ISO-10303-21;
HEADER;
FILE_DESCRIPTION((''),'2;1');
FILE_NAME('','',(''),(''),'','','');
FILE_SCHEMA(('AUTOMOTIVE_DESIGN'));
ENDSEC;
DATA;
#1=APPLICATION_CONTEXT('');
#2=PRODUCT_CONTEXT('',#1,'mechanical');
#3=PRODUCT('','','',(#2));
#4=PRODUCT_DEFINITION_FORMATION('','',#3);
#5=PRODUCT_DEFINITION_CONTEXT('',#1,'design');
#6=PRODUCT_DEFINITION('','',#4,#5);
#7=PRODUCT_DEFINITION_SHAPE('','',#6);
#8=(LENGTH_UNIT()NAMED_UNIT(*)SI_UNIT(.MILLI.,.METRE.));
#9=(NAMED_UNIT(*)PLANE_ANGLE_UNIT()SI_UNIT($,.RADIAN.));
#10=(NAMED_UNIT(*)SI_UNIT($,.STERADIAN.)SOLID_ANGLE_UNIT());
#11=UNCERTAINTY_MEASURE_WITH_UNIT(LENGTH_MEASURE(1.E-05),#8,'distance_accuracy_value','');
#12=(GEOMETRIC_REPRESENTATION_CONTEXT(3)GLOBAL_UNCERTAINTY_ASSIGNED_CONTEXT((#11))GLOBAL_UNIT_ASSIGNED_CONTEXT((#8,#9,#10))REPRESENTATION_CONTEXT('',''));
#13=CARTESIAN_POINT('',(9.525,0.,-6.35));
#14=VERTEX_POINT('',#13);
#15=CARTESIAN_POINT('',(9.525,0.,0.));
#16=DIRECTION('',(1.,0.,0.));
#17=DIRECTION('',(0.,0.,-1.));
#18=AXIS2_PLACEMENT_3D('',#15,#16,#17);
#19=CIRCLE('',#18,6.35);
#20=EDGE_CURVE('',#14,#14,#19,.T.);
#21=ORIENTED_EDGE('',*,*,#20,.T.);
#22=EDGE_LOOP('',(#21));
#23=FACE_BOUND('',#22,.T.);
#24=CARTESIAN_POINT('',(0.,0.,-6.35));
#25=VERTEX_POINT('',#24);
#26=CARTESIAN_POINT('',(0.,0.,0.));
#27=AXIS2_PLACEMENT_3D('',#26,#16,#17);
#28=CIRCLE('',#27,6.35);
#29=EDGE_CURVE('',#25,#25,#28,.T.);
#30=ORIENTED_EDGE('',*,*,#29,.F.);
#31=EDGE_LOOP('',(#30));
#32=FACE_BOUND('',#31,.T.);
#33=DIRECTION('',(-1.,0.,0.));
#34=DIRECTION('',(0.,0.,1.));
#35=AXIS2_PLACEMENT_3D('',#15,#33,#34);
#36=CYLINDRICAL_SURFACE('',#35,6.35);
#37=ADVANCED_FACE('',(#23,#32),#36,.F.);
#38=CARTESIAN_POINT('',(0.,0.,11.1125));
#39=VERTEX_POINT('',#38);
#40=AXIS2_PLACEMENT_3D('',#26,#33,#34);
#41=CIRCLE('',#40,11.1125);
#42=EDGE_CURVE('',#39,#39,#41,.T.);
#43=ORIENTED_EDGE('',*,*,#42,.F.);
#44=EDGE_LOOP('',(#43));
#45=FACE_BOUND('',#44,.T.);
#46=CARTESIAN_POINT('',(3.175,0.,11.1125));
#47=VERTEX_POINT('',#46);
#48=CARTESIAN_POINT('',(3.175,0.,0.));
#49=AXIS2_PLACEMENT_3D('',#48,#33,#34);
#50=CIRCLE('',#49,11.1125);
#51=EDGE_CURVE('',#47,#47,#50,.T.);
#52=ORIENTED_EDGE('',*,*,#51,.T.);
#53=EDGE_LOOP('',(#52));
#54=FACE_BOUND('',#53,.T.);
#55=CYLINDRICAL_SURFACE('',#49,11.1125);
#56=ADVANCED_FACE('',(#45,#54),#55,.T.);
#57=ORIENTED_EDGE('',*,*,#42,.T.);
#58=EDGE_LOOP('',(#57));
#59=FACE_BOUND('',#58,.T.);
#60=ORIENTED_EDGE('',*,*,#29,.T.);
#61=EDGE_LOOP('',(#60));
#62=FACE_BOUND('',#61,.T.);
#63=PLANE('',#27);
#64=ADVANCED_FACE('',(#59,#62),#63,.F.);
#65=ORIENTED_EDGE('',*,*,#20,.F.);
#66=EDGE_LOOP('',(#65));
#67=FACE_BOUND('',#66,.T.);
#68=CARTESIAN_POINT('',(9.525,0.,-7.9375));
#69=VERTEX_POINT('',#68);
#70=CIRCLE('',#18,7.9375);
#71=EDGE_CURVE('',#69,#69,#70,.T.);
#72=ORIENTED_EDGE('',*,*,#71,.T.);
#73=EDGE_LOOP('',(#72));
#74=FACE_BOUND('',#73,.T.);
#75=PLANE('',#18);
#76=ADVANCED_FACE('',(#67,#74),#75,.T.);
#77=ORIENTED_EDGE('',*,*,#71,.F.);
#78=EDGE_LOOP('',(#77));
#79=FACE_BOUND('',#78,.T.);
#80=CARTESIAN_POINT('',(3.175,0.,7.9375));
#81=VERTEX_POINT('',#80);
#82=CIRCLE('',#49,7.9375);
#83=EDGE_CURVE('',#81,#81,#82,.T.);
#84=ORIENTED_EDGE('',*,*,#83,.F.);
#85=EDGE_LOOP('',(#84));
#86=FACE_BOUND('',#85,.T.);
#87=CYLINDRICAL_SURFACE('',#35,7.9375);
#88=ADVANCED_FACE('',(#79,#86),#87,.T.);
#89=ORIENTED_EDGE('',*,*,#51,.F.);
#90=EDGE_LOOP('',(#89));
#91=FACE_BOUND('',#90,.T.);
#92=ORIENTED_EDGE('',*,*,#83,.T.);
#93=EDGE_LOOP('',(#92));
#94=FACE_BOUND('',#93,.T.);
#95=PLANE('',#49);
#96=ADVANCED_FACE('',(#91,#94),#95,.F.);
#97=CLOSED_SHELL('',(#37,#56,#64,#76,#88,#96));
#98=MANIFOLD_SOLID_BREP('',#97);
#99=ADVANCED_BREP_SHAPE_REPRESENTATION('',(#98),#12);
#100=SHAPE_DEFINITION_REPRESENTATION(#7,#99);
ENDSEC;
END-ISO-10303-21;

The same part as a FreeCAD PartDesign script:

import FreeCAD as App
import Part
import Sketcher
from FreeCAD import Vector
Q = App.Units.Quantity

doc = App.newDocument("Part")
body = doc.addObject("PartDesign::Body", "Body")

# Sketch on YZ plane
sketch1 = body.newObject("Sketcher::SketchObject", "Sketch")
sketch1.AttachmentSupport = (doc.getObject("YZ_Plane"), [""])
sketch1.MapMode = "FlatFace"
sketch1.addGeometry([
    Part.Circle(Vector(0, 0, 0), Vector(0, 0, 1), 7.9375),
    Part.Circle(Vector(0, 0, 0), Vector(0, 0, 1), 6.35),
], False)
sketch1.addConstraint([
    Sketcher.Constraint("Coincident", 0, 3, -1, 1),
    Sketcher.Constraint("Coincident", 1, 3, -1, 1),
    Sketcher.Constraint("Diameter", 1, Q("0.5 in")),
    Sketcher.Constraint("Diameter", 0, Q("0.625 in")),
])
pad1 = body.newObject("PartDesign::Pad", "Pad")
pad1.Profile = sketch1
pad1.Length = Q("0.375 in")

# Sketch on YZ plane
sketch2 = body.newObject("Sketcher::SketchObject", "Sketch001")
sketch2.AttachmentSupport = (doc.getObject("YZ_Plane"), [""])
sketch2.MapMode = "FlatFace"
sketch2.addGeometry([
    Part.Circle(Vector(0, 0, 0), Vector(0, 0, 1), 11.1125),
    Part.Circle(Vector(0, 0, 0), Vector(0, 0, 1), 6.35),
], False)
sketch2.addConstraint([
    Sketcher.Constraint("Coincident", 0, 3, -1, 1),
    Sketcher.Constraint("Coincident", 1, 3, -1, 1),
    Sketcher.Constraint("Diameter", 1, Q("0.5 in")),
    Sketcher.Constraint("Diameter", 0, Q("0.875 in")),
])
pad2 = body.newObject("PartDesign::Pad", "Pad001")
pad2.Profile = sketch2
pad2.Length = Q("0.125 in")

doc.recompute()
